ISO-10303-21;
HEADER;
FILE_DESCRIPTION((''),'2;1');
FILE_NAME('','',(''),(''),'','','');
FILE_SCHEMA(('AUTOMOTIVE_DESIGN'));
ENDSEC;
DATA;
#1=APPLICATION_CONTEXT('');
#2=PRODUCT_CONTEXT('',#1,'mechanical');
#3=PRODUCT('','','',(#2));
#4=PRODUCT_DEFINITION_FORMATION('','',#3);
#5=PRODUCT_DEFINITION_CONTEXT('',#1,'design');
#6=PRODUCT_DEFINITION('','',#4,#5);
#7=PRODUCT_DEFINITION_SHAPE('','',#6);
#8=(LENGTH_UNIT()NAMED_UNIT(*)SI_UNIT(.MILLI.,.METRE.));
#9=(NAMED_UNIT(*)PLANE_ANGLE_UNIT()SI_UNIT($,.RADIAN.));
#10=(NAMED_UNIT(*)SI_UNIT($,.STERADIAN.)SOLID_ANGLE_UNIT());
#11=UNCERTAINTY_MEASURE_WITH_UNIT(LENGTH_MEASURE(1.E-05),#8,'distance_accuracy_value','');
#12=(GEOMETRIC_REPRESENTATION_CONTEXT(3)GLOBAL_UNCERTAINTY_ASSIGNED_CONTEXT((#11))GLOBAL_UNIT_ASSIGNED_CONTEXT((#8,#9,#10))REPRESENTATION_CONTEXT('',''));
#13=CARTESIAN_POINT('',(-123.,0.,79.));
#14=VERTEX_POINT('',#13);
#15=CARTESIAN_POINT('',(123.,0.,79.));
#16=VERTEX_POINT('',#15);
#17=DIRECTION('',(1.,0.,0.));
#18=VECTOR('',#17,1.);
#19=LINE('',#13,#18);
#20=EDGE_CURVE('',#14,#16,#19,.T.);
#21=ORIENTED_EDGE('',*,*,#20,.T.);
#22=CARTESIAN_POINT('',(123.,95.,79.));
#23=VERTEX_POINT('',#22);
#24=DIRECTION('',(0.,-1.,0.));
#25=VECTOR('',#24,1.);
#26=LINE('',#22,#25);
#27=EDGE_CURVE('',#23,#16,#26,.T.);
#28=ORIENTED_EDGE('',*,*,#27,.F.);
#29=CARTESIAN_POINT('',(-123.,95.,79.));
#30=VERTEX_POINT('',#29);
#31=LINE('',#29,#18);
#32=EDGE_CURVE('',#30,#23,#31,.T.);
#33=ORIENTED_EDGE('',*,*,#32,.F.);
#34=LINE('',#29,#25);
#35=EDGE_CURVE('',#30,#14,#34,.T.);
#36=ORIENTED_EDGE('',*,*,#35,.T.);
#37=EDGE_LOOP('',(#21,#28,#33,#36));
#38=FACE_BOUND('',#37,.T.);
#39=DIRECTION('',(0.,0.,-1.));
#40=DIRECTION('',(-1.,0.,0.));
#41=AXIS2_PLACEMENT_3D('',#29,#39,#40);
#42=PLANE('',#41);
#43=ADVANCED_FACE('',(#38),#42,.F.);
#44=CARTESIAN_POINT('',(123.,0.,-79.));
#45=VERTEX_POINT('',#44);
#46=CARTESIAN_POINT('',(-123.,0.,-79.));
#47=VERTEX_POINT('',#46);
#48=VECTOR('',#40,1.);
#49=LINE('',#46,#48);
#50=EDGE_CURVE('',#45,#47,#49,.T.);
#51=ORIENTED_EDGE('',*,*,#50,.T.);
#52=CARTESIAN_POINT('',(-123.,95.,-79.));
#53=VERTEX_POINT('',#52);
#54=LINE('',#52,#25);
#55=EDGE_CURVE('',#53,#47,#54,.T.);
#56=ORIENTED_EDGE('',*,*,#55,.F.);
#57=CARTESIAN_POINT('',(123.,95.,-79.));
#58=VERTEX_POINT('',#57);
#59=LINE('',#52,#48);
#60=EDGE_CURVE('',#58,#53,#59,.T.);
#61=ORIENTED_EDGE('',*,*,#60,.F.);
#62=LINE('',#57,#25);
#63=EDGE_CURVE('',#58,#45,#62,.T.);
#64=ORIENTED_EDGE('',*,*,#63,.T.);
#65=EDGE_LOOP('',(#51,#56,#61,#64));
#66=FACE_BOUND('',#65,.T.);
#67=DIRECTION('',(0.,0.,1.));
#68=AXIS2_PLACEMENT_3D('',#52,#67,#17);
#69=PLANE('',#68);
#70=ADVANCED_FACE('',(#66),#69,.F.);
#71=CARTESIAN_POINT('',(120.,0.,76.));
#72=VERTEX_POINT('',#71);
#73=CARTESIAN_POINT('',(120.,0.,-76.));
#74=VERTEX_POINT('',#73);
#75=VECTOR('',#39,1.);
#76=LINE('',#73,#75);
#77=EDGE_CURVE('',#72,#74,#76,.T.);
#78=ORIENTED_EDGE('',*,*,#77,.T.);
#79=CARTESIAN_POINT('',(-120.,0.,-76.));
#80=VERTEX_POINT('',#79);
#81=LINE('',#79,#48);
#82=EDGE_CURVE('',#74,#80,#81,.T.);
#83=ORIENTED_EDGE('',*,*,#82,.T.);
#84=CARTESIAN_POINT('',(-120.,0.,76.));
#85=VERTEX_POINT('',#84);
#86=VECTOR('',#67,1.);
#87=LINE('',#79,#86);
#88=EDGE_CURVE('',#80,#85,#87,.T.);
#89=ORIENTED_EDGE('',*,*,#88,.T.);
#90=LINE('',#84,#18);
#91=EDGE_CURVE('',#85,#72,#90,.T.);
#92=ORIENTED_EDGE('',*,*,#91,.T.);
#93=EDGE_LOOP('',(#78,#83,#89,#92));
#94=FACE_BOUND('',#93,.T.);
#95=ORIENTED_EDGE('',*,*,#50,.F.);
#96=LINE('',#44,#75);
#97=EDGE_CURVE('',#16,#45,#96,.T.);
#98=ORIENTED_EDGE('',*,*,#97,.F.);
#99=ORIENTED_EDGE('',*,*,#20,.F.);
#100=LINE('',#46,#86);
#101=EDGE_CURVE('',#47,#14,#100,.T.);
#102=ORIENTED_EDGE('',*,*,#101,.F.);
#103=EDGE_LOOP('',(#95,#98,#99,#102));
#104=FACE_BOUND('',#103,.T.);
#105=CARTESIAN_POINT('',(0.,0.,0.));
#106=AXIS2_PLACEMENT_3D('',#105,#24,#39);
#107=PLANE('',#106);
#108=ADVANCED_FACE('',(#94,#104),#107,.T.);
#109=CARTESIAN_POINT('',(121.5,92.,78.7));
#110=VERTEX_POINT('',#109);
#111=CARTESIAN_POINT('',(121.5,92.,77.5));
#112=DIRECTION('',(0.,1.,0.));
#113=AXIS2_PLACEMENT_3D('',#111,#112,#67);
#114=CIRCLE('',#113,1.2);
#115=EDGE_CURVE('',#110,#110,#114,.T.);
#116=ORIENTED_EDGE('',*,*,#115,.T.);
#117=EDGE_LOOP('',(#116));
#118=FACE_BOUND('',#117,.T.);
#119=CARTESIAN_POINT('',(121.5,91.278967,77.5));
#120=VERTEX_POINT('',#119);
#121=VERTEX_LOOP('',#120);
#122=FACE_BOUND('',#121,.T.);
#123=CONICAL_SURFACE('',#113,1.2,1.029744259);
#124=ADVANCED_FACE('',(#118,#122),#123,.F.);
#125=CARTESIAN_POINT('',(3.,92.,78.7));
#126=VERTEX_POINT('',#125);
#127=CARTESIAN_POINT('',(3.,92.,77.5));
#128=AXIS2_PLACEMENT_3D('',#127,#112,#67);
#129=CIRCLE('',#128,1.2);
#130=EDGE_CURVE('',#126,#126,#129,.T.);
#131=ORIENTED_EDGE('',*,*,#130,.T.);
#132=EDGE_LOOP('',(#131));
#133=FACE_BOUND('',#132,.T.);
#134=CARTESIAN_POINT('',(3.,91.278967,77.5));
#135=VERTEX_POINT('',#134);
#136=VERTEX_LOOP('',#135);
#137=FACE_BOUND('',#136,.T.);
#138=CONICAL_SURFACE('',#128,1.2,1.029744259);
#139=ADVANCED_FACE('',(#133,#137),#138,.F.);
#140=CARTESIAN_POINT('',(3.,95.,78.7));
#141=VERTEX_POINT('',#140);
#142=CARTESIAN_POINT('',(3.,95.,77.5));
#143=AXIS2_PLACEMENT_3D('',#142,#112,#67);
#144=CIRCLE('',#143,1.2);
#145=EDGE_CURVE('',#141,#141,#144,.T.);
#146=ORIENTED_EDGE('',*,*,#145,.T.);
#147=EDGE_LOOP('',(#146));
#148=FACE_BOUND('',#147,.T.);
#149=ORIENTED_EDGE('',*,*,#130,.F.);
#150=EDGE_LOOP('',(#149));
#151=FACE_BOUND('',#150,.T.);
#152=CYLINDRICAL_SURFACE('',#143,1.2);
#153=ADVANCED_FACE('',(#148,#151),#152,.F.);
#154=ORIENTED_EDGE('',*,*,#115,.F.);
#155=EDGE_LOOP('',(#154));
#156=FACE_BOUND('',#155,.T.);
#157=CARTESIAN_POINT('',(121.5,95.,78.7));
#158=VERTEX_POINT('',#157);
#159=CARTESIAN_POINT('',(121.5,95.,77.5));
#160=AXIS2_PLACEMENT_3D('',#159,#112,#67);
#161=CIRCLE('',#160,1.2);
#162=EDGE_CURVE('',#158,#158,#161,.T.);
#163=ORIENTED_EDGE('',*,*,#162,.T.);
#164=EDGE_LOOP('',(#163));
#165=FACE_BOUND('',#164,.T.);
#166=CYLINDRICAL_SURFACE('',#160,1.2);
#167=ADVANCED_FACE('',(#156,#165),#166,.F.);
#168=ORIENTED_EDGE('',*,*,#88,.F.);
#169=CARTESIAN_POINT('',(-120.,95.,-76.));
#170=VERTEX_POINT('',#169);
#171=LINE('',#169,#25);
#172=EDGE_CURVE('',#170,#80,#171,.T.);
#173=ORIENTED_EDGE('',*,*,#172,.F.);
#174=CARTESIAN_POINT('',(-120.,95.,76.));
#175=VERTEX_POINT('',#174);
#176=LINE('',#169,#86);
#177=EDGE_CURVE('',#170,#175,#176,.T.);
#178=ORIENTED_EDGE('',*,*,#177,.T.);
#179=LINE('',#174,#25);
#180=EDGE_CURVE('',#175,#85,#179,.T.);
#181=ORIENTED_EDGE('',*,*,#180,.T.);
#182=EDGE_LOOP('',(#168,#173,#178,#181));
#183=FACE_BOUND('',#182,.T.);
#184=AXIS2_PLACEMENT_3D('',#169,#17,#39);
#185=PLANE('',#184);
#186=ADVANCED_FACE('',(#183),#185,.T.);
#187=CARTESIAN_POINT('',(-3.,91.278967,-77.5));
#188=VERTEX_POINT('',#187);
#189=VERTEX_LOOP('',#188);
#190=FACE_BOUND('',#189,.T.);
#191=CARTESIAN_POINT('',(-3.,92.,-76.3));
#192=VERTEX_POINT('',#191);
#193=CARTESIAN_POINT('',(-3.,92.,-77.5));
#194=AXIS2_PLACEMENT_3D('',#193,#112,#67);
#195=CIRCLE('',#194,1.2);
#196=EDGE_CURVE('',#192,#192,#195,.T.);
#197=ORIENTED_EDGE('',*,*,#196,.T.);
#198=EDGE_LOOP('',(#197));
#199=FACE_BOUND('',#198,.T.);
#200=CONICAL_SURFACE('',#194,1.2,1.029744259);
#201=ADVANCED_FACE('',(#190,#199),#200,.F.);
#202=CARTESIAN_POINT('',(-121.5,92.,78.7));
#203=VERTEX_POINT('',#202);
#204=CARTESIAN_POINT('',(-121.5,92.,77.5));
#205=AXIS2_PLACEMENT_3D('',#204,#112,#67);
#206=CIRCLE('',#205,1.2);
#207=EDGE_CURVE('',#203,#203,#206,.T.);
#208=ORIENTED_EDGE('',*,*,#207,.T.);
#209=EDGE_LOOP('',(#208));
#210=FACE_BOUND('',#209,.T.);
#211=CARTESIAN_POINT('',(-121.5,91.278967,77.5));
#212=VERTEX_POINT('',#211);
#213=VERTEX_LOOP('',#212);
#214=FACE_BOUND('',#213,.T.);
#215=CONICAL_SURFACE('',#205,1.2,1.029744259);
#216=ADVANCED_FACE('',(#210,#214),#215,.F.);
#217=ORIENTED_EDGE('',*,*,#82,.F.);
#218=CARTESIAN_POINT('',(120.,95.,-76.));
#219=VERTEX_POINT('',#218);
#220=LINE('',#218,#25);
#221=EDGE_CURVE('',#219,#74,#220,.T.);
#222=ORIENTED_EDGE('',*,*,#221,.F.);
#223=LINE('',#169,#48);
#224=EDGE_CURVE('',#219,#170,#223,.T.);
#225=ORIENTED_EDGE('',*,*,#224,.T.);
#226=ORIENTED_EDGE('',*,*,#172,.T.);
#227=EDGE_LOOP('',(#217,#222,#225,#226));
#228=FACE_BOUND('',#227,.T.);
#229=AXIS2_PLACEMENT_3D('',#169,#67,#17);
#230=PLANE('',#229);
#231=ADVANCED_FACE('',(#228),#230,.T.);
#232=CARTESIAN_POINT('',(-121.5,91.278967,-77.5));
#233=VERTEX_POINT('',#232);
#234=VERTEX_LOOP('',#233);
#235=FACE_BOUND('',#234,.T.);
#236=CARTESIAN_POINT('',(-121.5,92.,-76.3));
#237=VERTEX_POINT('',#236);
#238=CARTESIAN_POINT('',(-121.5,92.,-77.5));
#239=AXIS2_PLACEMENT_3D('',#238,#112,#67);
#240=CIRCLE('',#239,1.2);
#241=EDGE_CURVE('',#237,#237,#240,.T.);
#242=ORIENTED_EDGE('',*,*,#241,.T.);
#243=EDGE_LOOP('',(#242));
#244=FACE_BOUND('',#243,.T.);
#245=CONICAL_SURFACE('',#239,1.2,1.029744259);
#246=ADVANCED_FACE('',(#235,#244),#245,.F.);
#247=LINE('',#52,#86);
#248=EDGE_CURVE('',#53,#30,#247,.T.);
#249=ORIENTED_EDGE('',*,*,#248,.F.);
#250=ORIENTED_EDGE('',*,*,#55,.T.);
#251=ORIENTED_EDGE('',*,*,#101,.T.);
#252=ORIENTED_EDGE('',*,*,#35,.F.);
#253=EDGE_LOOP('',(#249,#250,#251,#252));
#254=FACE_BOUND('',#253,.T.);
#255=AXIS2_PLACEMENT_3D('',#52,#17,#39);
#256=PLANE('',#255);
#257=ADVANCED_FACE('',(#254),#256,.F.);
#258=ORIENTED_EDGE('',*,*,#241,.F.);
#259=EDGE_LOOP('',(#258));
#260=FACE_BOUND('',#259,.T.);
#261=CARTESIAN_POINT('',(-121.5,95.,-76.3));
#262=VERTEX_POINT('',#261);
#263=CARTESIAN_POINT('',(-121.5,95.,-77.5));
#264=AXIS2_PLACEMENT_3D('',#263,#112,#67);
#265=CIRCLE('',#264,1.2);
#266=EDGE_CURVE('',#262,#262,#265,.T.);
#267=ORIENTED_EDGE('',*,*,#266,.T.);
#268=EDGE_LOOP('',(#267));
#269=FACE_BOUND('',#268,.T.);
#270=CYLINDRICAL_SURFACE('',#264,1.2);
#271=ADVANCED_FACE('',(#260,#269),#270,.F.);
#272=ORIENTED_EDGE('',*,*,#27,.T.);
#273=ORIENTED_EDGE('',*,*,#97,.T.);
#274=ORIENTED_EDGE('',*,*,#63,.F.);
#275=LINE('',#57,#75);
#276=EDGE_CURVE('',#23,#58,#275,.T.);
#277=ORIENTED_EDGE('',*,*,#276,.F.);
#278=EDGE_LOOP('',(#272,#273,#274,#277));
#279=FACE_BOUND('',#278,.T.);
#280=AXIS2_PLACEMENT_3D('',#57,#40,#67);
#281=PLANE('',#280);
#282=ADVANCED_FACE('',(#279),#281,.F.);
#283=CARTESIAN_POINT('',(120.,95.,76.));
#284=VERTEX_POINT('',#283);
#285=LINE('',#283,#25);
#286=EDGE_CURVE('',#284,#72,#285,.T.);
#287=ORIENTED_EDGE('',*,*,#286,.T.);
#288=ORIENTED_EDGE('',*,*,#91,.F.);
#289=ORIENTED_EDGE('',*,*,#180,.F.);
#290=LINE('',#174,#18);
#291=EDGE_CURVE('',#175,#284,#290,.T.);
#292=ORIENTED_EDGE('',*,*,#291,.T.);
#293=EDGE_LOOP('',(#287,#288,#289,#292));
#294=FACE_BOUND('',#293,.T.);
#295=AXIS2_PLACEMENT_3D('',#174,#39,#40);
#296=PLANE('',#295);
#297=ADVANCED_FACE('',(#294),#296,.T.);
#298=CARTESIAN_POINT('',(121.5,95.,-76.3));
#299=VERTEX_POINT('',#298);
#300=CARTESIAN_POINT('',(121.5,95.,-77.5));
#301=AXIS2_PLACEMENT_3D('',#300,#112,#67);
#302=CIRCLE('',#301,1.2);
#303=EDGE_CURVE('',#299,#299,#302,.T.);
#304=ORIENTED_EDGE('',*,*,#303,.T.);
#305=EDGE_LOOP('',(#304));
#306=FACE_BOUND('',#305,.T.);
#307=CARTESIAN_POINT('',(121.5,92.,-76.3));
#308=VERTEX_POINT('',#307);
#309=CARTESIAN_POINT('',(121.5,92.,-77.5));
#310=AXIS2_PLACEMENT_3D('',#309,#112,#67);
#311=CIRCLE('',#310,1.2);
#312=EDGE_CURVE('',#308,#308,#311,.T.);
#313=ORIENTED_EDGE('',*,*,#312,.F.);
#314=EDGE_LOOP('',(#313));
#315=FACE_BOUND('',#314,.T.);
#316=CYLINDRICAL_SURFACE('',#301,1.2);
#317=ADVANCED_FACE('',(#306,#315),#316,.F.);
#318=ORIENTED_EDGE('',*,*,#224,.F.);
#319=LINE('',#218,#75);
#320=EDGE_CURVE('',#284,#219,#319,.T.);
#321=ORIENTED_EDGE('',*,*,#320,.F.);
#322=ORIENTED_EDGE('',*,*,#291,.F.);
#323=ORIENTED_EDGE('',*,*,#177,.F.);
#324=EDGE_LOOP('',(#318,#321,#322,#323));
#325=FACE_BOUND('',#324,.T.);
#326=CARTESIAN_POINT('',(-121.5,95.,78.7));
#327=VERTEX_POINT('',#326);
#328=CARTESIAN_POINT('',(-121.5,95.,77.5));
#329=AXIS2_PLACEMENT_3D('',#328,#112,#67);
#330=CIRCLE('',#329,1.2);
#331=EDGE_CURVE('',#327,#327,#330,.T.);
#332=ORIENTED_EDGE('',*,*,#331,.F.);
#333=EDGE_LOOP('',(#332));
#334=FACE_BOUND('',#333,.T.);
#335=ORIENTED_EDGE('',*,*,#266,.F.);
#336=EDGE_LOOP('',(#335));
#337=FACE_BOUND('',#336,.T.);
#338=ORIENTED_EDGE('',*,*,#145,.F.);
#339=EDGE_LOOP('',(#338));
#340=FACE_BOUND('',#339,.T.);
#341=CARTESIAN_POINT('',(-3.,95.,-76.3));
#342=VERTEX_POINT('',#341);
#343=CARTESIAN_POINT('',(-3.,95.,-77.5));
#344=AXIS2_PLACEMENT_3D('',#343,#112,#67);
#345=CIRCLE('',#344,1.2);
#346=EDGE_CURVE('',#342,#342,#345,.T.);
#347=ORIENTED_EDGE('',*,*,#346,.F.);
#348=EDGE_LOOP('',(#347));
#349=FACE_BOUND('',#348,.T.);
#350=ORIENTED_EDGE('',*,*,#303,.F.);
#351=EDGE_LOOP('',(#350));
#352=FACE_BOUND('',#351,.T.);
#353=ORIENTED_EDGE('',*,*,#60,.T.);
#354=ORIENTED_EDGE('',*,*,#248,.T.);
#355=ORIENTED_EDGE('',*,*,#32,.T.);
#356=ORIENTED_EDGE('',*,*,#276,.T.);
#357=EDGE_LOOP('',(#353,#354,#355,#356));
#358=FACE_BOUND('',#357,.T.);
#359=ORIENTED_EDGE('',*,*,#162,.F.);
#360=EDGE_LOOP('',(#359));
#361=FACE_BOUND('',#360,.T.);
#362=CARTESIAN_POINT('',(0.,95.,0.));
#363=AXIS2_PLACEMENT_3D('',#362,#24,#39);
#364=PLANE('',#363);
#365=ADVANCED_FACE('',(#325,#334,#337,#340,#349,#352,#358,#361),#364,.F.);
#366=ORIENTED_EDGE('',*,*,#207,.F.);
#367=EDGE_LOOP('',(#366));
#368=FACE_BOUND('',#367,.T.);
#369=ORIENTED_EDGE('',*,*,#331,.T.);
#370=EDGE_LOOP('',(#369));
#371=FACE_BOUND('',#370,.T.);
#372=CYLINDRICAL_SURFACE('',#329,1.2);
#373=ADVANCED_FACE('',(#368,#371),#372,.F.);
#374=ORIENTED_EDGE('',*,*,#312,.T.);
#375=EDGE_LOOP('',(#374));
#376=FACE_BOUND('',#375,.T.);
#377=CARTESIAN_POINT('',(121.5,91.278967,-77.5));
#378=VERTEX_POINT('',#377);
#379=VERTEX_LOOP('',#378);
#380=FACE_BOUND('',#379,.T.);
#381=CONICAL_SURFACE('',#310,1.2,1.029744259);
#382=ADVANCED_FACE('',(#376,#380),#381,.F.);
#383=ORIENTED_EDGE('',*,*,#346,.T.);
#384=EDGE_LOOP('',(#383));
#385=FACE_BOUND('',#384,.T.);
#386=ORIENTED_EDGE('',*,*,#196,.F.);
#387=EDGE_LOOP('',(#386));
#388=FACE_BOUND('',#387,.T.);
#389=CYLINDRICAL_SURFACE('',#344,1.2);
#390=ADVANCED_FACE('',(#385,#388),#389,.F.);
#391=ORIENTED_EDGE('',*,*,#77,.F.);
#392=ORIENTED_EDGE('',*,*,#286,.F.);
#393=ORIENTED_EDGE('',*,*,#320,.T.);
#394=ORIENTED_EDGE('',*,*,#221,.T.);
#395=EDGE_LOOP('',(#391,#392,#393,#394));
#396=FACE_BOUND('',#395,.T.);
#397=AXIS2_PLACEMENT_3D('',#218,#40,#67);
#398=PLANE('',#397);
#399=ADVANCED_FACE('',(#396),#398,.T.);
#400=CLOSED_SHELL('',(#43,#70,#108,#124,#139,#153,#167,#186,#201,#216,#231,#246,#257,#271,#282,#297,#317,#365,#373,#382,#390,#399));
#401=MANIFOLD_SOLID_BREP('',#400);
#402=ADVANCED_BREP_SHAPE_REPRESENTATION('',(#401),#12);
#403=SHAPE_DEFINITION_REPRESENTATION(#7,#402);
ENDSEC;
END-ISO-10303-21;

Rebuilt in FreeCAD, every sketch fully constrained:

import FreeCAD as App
import Part
import Sketcher
Q = App.Units.Quantity


def add_polygon(sketch, points):
    """Adds a closed chain of lines whose ends are joined by coincident constraints."""
    first, n = sketch.GeometryCount, len(points)
    for a, b in zip(points, points[1:] + points[:1]):
        sketch.addGeometry(Part.LineSegment(App.Vector(*a, 0), App.Vector(*b, 0)), False)
    for i in range(n):
        sketch.addConstraint(Sketcher.Constraint("Coincident", first + i, 2, first + (i + 1) % n, 1))

doc = App.newDocument("Part")
body = doc.addObject("PartDesign::Body", "Body")

sketch1 = body.newObject("Sketcher::SketchObject", "Sketch")
sketch1.AttachmentSupport = (doc.getObject("XZ_Plane"), [""])
sketch1.MapMode = "FlatFace"
add_polygon(sketch1, [(-123, -79), (-123, 79), (123, 79), (123, -79)])
add_polygon(sketch1, [(120, 76), (-120, 76), (-120, -76), (120, -76)])
sketch1.addConstraint([
    Sketcher.Constraint("Vertical", 0),
    Sketcher.Constraint("Horizontal", 1),
    Sketcher.Constraint("Vertical", 2),
    Sketcher.Constraint("Horizontal", 3),
    Sketcher.Constraint("Horizontal", 4),
    Sketcher.Constraint("Vertical", 5),
    Sketcher.Constraint("Horizontal", 6),
    Sketcher.Constraint("Vertical", 7),
    Sketcher.Constraint("Symmetric", 0, 2, 2, 2, -1, 1),
    Sketcher.Constraint("Symmetric", 4, 2, 6, 2, -1, 1),
    Sketcher.Constraint("DistanceX", 1, 1, 1, 2, Q("246 mm")),
    Sketcher.Constraint("DistanceX", 4, 2, 4, 1, Q("240 mm")),
    Sketcher.Constraint("DistanceY", 0, 1, 0, 2, Q("158 mm")),
    Sketcher.Constraint("DistanceY", 5, 2, 5, 1, Q("152 mm")),
])
pad1 = body.newObject("PartDesign::Pad", "Pad")
pad1.Profile = sketch1
pad1.Length = 95
pad1.Reversed = True

sketch2 = body.newObject("Sketcher::SketchObject", "Sketch001")
sketch2.AttachmentSupport = (doc.getObject("XZ_Plane"), [""])
sketch2.MapMode = "FlatFace"
sketch2.AttachmentOffset = App.Placement(App.Vector(0, 0, -95), App.Rotation())
sketch2.addGeometry([
    Part.Circle(App.Vector(-121.5, -77.5, 0), App.Vector(0, 0, 1), 1.2),
    Part.Circle(App.Vector(-121.5, 77.5, 0), App.Vector(0, 0, 1), 1.2),
    Part.Circle(App.Vector(121.5, 77.5, 0), App.Vector(0, 0, 1), 1.2),
    Part.Circle(App.Vector(121.5, -77.5, 0), App.Vector(0, 0, 1), 1.2),
    Part.Circle(App.Vector(-3, -77.5, 0), App.Vector(0, 0, 1), 1.2),
    Part.Circle(App.Vector(3, 77.5, 0), App.Vector(0, 0, 1), 1.2),
], False)
sketch2.addConstraint([
    Sketcher.Constraint("Equal", 0, 1),
    Sketcher.Constraint("Equal", 1, 2),
    Sketcher.Constraint("Equal", 2, 3),
    Sketcher.Constraint("Equal", 3, 4),
    Sketcher.Constraint("Equal", 4, 5),
    Sketcher.Constraint("Symmetric", 0, 3, 2, 3, -1, 1),
    Sketcher.Constraint("Symmetric", 1, 3, 3, 3, -1, 1),
    Sketcher.Constraint("Symmetric", 4, 3, 5, 3, -1, 1),
    Sketcher.Constraint("Symmetric", 1, 3, 2, 3, -2),
    Sketcher.Constraint("Horizontal", 3, 3, 4, 3),
    Sketcher.Constraint("Diameter", 0, Q("2.4 mm")),
    Sketcher.Constraint("DistanceX", 4, 3, -1, 1, Q("3 mm")),
    Sketcher.Constraint("DistanceY", 0, 3, 1, 3, Q("155 mm")),
    Sketcher.Constraint("DistanceX", 1, 3, 2, 3, Q("243 mm")),
])
doc.recompute()
hole = body.newObject("PartDesign::Hole", "Hole")
hole.Profile = sketch2
hole.ThreadType = "None"
hole.Diameter = 2.4
hole.DepthType = "Dimension"
hole.Depth = 3
hole.DrillPoint = "Angled"
hole.DrillPointAngle = 118
hole.Reversed = True

doc.recompute()
